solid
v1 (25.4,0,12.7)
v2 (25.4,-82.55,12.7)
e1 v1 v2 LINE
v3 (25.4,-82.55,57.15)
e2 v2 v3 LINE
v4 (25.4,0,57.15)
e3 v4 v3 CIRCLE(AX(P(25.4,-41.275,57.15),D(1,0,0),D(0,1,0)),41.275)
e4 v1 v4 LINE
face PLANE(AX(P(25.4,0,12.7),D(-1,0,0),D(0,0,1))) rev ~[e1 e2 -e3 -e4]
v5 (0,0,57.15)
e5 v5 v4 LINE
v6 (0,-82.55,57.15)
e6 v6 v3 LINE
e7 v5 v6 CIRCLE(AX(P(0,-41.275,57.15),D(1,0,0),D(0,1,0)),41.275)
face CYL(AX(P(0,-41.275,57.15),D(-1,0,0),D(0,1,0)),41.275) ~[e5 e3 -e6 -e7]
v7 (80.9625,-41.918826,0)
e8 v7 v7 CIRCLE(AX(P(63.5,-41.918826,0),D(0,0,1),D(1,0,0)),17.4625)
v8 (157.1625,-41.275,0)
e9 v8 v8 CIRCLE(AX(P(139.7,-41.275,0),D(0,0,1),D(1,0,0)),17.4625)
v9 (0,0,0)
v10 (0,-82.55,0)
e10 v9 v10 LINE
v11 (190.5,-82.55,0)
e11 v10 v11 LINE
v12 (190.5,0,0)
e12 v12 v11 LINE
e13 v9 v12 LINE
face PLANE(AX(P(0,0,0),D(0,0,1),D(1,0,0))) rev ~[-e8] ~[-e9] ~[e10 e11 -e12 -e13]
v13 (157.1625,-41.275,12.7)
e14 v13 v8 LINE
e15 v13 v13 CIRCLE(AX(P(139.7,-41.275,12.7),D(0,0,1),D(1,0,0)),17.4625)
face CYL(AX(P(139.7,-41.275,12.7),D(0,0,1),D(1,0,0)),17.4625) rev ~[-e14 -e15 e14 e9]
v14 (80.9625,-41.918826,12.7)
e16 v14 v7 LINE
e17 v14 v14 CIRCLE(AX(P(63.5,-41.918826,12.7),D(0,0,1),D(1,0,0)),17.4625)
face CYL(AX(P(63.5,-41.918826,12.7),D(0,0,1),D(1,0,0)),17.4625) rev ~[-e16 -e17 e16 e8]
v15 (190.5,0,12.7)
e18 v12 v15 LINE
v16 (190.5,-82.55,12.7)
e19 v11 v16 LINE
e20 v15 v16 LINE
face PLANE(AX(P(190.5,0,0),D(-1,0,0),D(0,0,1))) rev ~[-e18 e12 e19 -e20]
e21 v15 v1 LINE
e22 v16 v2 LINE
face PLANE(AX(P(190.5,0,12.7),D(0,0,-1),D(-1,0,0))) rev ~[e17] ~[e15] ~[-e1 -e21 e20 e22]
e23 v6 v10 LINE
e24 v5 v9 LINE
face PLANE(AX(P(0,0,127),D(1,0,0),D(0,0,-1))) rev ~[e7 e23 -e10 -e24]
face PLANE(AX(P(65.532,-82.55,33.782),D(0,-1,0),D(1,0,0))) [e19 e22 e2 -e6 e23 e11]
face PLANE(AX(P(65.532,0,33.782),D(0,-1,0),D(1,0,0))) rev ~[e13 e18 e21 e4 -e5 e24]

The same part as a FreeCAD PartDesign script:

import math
import FreeCAD as App
import Part
import Sketcher
from FreeCAD import Vector
Q = App.Units.Quantity


def add_polygon(sketch, points):
    """Adds a closed chain of lines whose ends are joined by coincident constraints."""
    first, n = sketch.GeometryCount, len(points)
    for a, b in zip(points, points[1:] + points[:1]):
        sketch.addGeometry(Part.LineSegment(App.Vector(*a, 0), App.Vector(*b, 0)), False)
    for i in range(n):
        sketch.addConstraint(Sketcher.Constraint("Coincident", first + i, 2, first + (i + 1) % n, 1))

doc = App.newDocument("Part")
body = doc.addObject("PartDesign::Body", "Body")

# Sketch on XZ plane
sketch1 = body.newObject("Sketcher::SketchObject", "Sketch")
sketch1.AttachmentSupport = (doc.getObject("XZ_Plane"), [""])
sketch1.MapMode = "FlatFace"
add_polygon(sketch1, [(0, 127), (0, 0), (190, 0), (190, 13), (25, 13), (25, 127)])  # lines 0-5
sketch1.addConstraint([
    Sketcher.Constraint("Vertical", 0),
    Sketcher.Constraint("Horizontal", 1),
    Sketcher.Constraint("Vertical", 2),
    Sketcher.Constraint("Horizontal", 3),
    Sketcher.Constraint("Vertical", 4),
    Sketcher.Constraint("Horizontal", 5),
    Sketcher.Constraint("Coincident", 0, 2, -1, 1),
    Sketcher.Constraint("DistanceX", 5, 2, 5, 1, Q("1 in")),
    Sketcher.Constraint("DistanceY", 0, 2, 0, 1, Q("5 in")),
    Sketcher.Constraint("DistanceX", 1, 1, 1, 2, Q("7.5 in")),
    Sketcher.Constraint("DistanceY", 2, 1, 2, 2, Q("0.5 in")),
])
pad1 = body.newObject("PartDesign::Pad", "Pad")
pad1.Profile = sketch1
pad1.Length = Q("3.25 in")

# Sketch on YZ plane
sketch2 = body.newObject("Sketcher::SketchObject", "Sketch001")
sketch2.AttachmentSupport = (doc.getObject("YZ_Plane"), [""])
sketch2.MapMode = "FlatFace"
sketch2.addGeometry([
    Part.LineSegment(Vector(0, 127, 0), Vector(0, 57, 0)),
    Part.ArcOfCircle(Part.Circle(Vector(-41, 57, 0), Vector(0, 0, 1), 41), math.radians(0), math.radians(180)),
    Part.LineSegment(Vector(-83, 57, 0), Vector(-83, 127, 0)),
    Part.LineSegment(Vector(-83, 127, 0), Vector(0, 127, 0)),
], False)
sketch2.addConstraint([
    Sketcher.Constraint("Tangent", 0, 2, 1, 1),
    Sketcher.Constraint("Tangent", 1, 2, 2, 1),
    Sketcher.Constraint("Coincident", 2, 2, 3, 1),
    Sketcher.Constraint("Coincident", 3, 2, 0, 1),
    Sketcher.Constraint("Vertical", 0),
    Sketcher.Constraint("Vertical", 2),
    Sketcher.Constraint("Horizontal", 3),
    Sketcher.Constraint("PointOnObject", 0, 2, -2),
    Sketcher.Constraint("DistanceY", -1, 1, 2, 2, Q("5 in")),
    Sketcher.Constraint("Radius", 1, Q("1.625 in")),
    Sketcher.Constraint("DistanceY", 0, 2, 0, 1, Q("2.75 in")),
])
pocket1 = body.newObject("PartDesign::Pocket", "Pocket")
pocket1.Profile = sketch2
pocket1.Length = Q("1 in")
pocket1.Reversed = True

# Sketch on XY plane
sketch3 = body.newObject("Sketcher::SketchObject", "Sketch002")
sketch3.AttachmentSupport = (doc.getObject("XY_Plane"), [""])
sketch3.MapMode = "FlatFace"
sketch3.AttachmentOffset = App.Placement(Vector(0, 0, 0.5 * 25.4), App.Rotation())
sketch3.addGeometry([
    Part.Circle(Vector(64, -42, 0), Vector(0, 0, 1), 17),
    Part.Circle(Vector(140, -41, 0), Vector(0, 0, 1), 17),
], False)
sketch3.addConstraint([
    Sketcher.Constraint("Equal", 0, 1),
    Sketcher.Constraint("Diameter", 0, Q("1.375 in")),
    Sketcher.Constraint("DistanceX", 0, 3, 1, 3, Q("3 in")),
    Sketcher.Constraint("DistanceX", -1, 1, 0, 3, Q("2.5 in")),
    Sketcher.Constraint("DistanceY", 1, 3, -1, 1, Q("1.625 in")),
    Sketcher.Constraint("DistanceY", 0, 3, -1, 1, 41.918826),
])
pocket2 = body.newObject("PartDesign::Pocket", "Pocket001")
pocket2.Profile = sketch3
pocket2.Length = Q("0.5 in")

doc.recompute()
